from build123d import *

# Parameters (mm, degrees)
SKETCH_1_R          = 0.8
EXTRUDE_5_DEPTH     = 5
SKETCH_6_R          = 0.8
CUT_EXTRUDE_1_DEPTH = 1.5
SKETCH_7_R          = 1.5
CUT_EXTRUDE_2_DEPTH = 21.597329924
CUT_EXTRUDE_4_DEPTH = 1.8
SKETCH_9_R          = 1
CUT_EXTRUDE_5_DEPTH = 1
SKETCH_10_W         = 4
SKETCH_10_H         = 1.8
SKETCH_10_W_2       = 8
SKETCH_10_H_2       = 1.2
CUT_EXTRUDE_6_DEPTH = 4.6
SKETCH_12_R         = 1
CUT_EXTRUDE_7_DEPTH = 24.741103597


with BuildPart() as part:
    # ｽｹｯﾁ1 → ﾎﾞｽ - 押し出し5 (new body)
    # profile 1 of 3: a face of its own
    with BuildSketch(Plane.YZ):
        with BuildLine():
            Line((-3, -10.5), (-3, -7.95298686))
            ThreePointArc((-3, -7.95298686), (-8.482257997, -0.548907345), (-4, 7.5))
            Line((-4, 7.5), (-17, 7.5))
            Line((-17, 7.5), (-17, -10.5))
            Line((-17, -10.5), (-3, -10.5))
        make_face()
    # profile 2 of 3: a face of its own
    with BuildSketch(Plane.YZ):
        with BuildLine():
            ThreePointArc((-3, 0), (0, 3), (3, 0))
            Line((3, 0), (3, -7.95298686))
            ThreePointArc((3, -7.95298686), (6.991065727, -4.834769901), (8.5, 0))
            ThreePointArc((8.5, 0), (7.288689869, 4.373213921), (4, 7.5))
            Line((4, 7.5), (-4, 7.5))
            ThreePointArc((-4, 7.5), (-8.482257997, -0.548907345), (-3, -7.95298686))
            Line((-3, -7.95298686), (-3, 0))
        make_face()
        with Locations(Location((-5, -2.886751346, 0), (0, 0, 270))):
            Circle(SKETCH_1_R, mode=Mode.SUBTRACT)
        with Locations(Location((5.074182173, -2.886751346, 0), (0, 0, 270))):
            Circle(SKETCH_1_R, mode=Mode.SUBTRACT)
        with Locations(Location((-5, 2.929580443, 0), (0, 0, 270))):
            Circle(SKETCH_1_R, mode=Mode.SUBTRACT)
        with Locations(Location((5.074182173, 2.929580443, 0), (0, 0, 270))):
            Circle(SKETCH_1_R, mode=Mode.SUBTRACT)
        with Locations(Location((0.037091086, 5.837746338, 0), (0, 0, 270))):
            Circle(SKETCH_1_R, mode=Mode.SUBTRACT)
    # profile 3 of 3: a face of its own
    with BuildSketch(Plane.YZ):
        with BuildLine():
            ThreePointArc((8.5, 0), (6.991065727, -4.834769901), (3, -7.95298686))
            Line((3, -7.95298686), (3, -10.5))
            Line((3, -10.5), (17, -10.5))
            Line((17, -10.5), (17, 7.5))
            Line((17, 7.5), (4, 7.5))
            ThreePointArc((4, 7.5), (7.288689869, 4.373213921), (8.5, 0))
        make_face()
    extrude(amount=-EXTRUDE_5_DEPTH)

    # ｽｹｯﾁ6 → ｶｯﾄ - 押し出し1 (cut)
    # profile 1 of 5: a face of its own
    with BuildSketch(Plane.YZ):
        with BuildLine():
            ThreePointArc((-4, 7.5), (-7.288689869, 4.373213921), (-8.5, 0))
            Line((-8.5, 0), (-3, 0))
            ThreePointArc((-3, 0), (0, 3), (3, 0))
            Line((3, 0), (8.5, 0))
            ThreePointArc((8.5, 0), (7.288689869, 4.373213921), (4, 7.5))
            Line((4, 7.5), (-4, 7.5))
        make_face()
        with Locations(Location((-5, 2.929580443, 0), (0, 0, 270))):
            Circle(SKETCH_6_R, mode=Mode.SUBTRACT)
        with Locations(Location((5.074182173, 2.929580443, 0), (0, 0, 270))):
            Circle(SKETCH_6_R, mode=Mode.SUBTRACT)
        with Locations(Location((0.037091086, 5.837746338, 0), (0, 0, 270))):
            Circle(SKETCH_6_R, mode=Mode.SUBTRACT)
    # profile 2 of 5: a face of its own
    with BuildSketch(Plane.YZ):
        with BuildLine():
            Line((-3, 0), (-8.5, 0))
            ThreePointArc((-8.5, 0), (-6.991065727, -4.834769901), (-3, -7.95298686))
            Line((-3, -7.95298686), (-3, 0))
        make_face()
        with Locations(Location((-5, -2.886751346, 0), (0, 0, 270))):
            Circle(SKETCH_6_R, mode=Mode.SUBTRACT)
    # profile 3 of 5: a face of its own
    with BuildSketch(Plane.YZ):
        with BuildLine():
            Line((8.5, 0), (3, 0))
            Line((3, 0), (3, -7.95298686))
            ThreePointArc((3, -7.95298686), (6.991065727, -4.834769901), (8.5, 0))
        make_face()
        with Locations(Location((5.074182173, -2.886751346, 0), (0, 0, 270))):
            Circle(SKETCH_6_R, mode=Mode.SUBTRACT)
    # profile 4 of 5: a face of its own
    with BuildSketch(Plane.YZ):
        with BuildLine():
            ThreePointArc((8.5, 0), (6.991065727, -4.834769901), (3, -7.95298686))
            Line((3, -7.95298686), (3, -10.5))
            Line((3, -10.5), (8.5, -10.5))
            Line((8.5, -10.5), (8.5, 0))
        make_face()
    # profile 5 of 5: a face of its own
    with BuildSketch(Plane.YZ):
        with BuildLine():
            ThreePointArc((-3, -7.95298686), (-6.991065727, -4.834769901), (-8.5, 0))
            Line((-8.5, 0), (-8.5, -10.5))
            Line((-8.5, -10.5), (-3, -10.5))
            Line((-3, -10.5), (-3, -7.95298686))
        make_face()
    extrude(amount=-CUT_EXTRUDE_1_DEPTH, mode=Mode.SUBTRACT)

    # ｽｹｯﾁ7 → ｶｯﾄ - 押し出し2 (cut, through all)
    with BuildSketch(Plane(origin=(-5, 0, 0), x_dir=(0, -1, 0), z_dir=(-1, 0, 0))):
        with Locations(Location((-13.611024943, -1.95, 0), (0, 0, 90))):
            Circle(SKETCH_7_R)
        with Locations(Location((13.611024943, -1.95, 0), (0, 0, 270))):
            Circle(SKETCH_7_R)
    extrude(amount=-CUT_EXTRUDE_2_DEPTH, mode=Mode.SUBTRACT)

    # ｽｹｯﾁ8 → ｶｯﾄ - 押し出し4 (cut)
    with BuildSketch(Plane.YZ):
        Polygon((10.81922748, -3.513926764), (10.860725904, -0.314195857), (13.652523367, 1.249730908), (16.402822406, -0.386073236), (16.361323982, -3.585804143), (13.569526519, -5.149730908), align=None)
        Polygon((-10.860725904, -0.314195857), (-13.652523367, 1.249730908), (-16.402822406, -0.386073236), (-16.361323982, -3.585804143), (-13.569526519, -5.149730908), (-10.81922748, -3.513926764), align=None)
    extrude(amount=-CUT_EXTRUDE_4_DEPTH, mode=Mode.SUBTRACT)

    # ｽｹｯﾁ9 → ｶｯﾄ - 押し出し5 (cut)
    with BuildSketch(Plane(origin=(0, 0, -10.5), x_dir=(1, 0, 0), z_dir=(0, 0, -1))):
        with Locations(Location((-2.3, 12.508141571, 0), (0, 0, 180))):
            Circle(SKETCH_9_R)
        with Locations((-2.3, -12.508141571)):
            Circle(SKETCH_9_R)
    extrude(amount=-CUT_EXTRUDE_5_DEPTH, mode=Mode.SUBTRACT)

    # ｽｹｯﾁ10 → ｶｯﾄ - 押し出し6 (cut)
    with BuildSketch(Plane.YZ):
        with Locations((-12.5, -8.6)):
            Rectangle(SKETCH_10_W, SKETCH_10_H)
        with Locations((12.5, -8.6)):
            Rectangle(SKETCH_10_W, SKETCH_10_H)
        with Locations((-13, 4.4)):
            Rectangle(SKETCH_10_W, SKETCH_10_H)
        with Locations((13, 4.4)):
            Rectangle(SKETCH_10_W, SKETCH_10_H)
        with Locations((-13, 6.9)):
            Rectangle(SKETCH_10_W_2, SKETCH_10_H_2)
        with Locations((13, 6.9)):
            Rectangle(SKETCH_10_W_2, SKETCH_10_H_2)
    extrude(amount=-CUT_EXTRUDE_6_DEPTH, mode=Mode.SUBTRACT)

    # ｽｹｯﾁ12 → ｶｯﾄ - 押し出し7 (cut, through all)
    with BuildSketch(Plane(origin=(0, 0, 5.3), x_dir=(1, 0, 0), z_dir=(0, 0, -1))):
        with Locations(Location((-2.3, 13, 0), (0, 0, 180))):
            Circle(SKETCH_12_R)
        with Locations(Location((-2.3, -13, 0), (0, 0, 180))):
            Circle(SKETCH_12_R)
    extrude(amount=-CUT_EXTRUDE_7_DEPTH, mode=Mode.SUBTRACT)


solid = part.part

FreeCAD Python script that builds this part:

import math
import FreeCAD as App
import Part
import Sketcher
from FreeCAD import Vector

doc = App.newDocument("Part")
body = doc.addObject("PartDesign::Body", "Body")

# Sketch on YZ plane
sketch1 = doc.addObject("Sketcher::SketchObject", "Sketch")
body.addObject(sketch1)
sketch1.AttachmentSupport = (doc.YZ_Plane, [""])
sketch1.MapMode = "FlatFace"
sketch1.addGeometry([
    Part.LineSegment(Vector(-3, -10.5, 0), Vector(-3, 0, 0)),  # 0
    Part.ArcOfCircle(Part.Circle(Vector(0, 0, 0), Vector(0, 0, 1), 3), math.radians(0), math.radians(180)),  # 1
    Part.LineSegment(Vector(3, 0, 0), Vector(3, -10.5, 0)),  # 2
    Part.LineSegment(Vector(3, -10.5, 0), Vector(17, -10.5, 0)),  # 3
    Part.LineSegment(Vector(17, -10.5, 0), Vector(17, 7.5, 0)),  # 4
    Part.LineSegment(Vector(17, 7.5, 0), Vector(-17, 7.5, 0)),  # 5
    Part.LineSegment(Vector(-17, 7.5, 0), Vector(-17, -10.5, 0)),  # 6
    Part.LineSegment(Vector(-17, -10.5, 0), Vector(-3, -10.5, 0)),  # 7
    Part.Circle(Vector(5.1, 2.9, 0), Vector(0, 0, 1), 0.8),  # 8
    Part.Circle(Vector(-5, -2.9, 0), Vector(0, 0, 1), 0.8),  # 9
    Part.Circle(Vector(5.1, -2.9, 0), Vector(0, 0, 1), 0.8),  # 10
    Part.Circle(Vector(-5, 2.9, 0), Vector(0, 0, 1), 0.8),  # 11
    Part.Circle(Vector(0, 5.8, 0), Vector(0, 0, 1), 0.8),  # 12
], False)
sketch1.addConstraint([
    Sketcher.Constraint("Tangent", 0, 2, 1, 2),
    Sketcher.Constraint("Tangent", 1, 1, 2, 1),
    Sketcher.Constraint("Coincident", 2, 2, 3, 1),
    Sketcher.Constraint("Coincident", 3, 2, 4, 1),
    Sketcher.Constraint("Coincident", 4, 2, 5, 1),
    Sketcher.Constraint("Coincident", 5, 2, 6, 1),
    Sketcher.Constraint("Coincident", 6, 2, 7, 1),
    Sketcher.Constraint("Coincident", 7, 2, 0, 1),
    Sketcher.Constraint("Vertical", 0),
    Sketcher.Constraint("Vertical", 2),
    Sketcher.Constraint("Horizontal", 3),
    Sketcher.Constraint("Vertical", 4),
    Sketcher.Constraint("Horizontal", 5),
    Sketcher.Constraint("Vertical", 6),
    Sketcher.Constraint("Horizontal", 7),
    Sketcher.Constraint("Coincident", 1, 3, -1, 1),
    Sketcher.Constraint("Equal", 8, 9),
    Sketcher.Constraint("Equal", 9, 10),
    Sketcher.Constraint("Equal", 10, 11),
    Sketcher.Constraint("Equal", 11, 12),
    Sketcher.Constraint("Symmetric", 3, 2, 6, 2, -2),
    Sketcher.Constraint("Horizontal", 9, 3, 10, 3),
    Sketcher.Constraint("Horizontal", 8, 3, 11, 3),
    Sketcher.Constraint("Vertical", 8, 3, 10, 3),
    Sketcher.Constraint("Vertical", 9, 3, 11, 3),
    Sketcher.Constraint("Radius", 1, 3.0),
    Sketcher.Constraint("Diameter", 8, 1.6),
    Sketcher.Constraint("DistanceX", 3, 1, 3, 2, 14.0),
    Sketcher.Constraint("DistanceY", 4, 1, 4, 2, 18.0),
    Sketcher.Constraint("DistanceY", 0, 1, 0, 2, 10.5),
    Sketcher.Constraint("DistanceX", 9, 3, -1, 1, 5.0),
    Sketcher.Constraint("DistanceY", -1, 1, 8, 3, 2.92958),
    Sketcher.Constraint("DistanceY", 9, 3, -1, 1, 2.886751),
    Sketcher.Constraint("DistanceX", -1, 1, 12, 3, 0.037091),
    Sketcher.Constraint("DistanceX", 12, 3, 8, 3, 5.037091),
    Sketcher.Constraint("DistanceY", -1, 1, 12, 3, 5.837746),
])
pad1 = doc.addObject("PartDesign::Pad", "Pad")
body.addObject(pad1)
pad1.Profile = sketch1
pad1.Length = 5
pad1.Reversed = True

# Sketch on YZ plane
sketch2 = doc.addObject("Sketcher::SketchObject", "Sketch001")
body.addObject(sketch2)
sketch2.AttachmentSupport = (doc.YZ_Plane, [""])
sketch2.MapMode = "FlatFace"
sketch2.addGeometry([
    Part.ArcOfCircle(Part.Circle(Vector(0, 0, 0), Vector(0, 0, 1), 8.5), math.radians(118), math.radians(180)),  # 0
    Part.LineSegment(Vector(-8.5, 0, 0), Vector(-8.5, -10.5, 0)),  # 1
    Part.LineSegment(Vector(-8.5, -10.5, 0), Vector(-3, -10.5, 0)),  # 2
    Part.LineSegment(Vector(-3, -10.5, 0), Vector(-3, 0, 0)),  # 3
    Part.ArcOfCircle(Part.Circle(Vector(0, 0, 0), Vector(0, 0, 1), 3), math.radians(0), math.radians(180)),  # 4
    Part.LineSegment(Vector(3, 0, 0), Vector(3, -10.5, 0)),  # 5
    Part.LineSegment(Vector(3, -10.5, 0), Vector(8.5, -10.5, 0)),  # 6
    Part.LineSegment(Vector(8.5, -10.5, 0), Vector(8.5, 0, 0)),  # 7
    Part.ArcOfCircle(Part.Circle(Vector(0, 0, 0), Vector(0, 0, 1), 8.5), math.radians(0), math.radians(62)),  # 8
    Part.LineSegment(Vector(4, 7.5, 0), Vector(-4, 7.5, 0)),  # 9
    Part.Circle(Vector(-5, 2.9, 0), Vector(0, 0, 1), 0.8),  # 10
    Part.Circle(Vector(5.1, 2.9, 0), Vector(0, 0, 1), 0.8),  # 11
    Part.Circle(Vector(0, 5.8, 0), Vector(0, 0, 1), 0.8),  # 12
    Part.Circle(Vector(-5, -2.9, 0), Vector(0, 0, 1), 0.8),  # 13
    Part.Circle(Vector(5.1, -2.9, 0), Vector(0, 0, 1), 0.8),  # 14
], False)
sketch2.addConstraint([
    Sketcher.Constraint("Tangent", 0, 2, 1, 1),
    Sketcher.Constraint("Coincident", 1, 2, 2, 1),
    Sketcher.Constraint("Coincident", 2, 2, 3, 1),
    Sketcher.Constraint("Tangent", 3, 2, 4, 2),
    Sketcher.Constraint("Tangent", 4, 1, 5, 1),
    Sketcher.Constraint("Coincident", 5, 2, 6, 1),
    Sketcher.Constraint("Coincident", 6, 2, 7, 1),
    Sketcher.Constraint("Tangent", 7, 2, 8, 1),
    Sketcher.Constraint("Coincident", 8, 2, 9, 1),
    Sketcher.Constraint("Coincident", 9, 2, 0, 1),
    Sketcher.Constraint("Vertical", 1),
    Sketcher.Constraint("Horizontal", 2),
    Sketcher.Constraint("Vertical", 3),
    Sketcher.Constraint("Vertical", 5),
    Sketcher.Constraint("Horizontal", 6),
    Sketcher.Constraint("Vertical", 7),
    Sketcher.Constraint("Horizontal", 9),
    Sketcher.Constraint("Coincident", 0, 3, -1, 1),
    Sketcher.Constraint("Coincident", 4, 3, -1, 1),
    Sketcher.Constraint("Coincident", 8, 3, -1, 1),
    Sketcher.Constraint("Equal", 0, 8),
    Sketcher.Constraint("Equal", 10, 11),
    Sketcher.Constraint("Equal", 11, 12),
    Sketcher.Constraint("Equal", 12, 13),
    Sketcher.Constraint("Equal", 13, 14),
    Sketcher.Constraint("Horizontal", 10, 3, 11, 3),
    Sketcher.Constraint("Horizontal", 13, 3, 14, 3),
    Sketcher.Constraint("Horizontal", 2, 2, 5, 2),
    Sketcher.Constraint("Vertical", 10, 3, 13, 3),
    Sketcher.Constraint("Vertical", 11, 3, 14, 3),
    Sketcher.Constraint("Radius", 4, 3.0),
    Sketcher.Constraint("Diameter", 10, 1.6),
    Sketcher.Constraint("Radius", 0, 8.5),
    Sketcher.Constraint("DistanceX", 9, 2, 9, 1, 8.0),
    Sketcher.Constraint("DistanceY", 1, 2, 1, 1, 10.5),
    Sketcher.Constraint("DistanceX", 10, 3, -1, 1, 5.0),
    Sketcher.Constraint("DistanceY", -1, 1, 10, 3, 2.92958),
    Sketcher.Constraint("DistanceX", -1, 1, 12, 3, 0.037091),
    Sketcher.Constraint("DistanceY", 13, 3, -1, 1, 2.886751),
    Sketcher.Constraint("DistanceX", 12, 3, 11, 3, 5.037091),
    Sketcher.Constraint("DistanceY", -1, 1, 12, 3, 5.837746),
])
pocket1 = doc.addObject("PartDesign::Pocket", "Pocket")
body.addObject(pocket1)
pocket1.Profile = sketch2
pocket1.Length = 1.5

# Sketch on YZ plane
sketch3 = doc.addObject("Sketcher::SketchObject", "Sketch002")
body.addObject(sketch3)
sketch3.AttachmentSupport = (doc.YZ_Plane, [""])
sketch3.MapMode = "FlatFace"
sketch3.AttachmentOffset = App.Placement(Vector(0, 0, -5), App.Rotation())
sketch3.addGeometry([
    Part.Circle(Vector(13.6, -1.9, 0), Vector(0, 0, 1), 1.5),
    Part.Circle(Vector(-13.6, -1.9, 0), Vector(0, 0, 1), 1.5),
], False)
sketch3.addConstraint([
    Sketcher.Constraint("Equal", 0, 1),
    Sketcher.Constraint("Symmetric", 0, 3, 1, 3, -2),
    Sketcher.Constraint("Diameter", 0, 3.0),
    Sketcher.Constraint("DistanceY", 0, 3, -1, 1, 1.95),
    Sketcher.Constraint("DistanceX", 1, 3, 0, 3, 27.22205),
])
pocket2 = doc.addObject("PartDesign::Pocket", "Pocket001")
body.addObject(pocket2)
pocket2.Profile = sketch3
pocket2.Type = "ThroughAll"
pocket2.Reversed = True

# Sketch on YZ plane
sketch4 = doc.addObject("Sketcher::SketchObject", "Sketch003")
body.addObject(sketch4)
sketch4.AttachmentSupport = (doc.YZ_Plane, [""])
sketch4.MapMode = "FlatFace"
sketch4.addGeometry([
    Part.LineSegment(Vector(10.9, -0.3, 0), Vector(10.8, -3.5, 0)),  # 0
    Part.LineSegment(Vector(10.8, -3.5, 0), Vector(13.6, -5.1, 0)),  # 1
    Part.LineSegment(Vector(13.6, -5.1, 0), Vector(16.4, -3.6, 0)),  # 2
    Part.LineSegment(Vector(16.4, -3.6, 0), Vector(16.4, -0.4, 0)),  # 3
    Part.LineSegment(Vector(16.4, -0.4, 0), Vector(13.7, 1.2, 0)),  # 4
    Part.LineSegment(Vector(13.7, 1.2, 0), Vector(10.9, -0.3, 0)),  # 5
    Part.LineSegment(Vector(-10.9, -0.3, 0), Vector(-13.7, 1.2, 0)),  # 6
    Part.LineSegment(Vector(-13.7, 1.2, 0), Vector(-16.4, -0.4, 0)),  # 7
    Part.LineSegment(Vector(-16.4, -0.4, 0), Vector(-16.4, -3.6, 0)),  # 8
    Part.LineSegment(Vector(-16.4, -3.6, 0), Vector(-13.6, -5.1, 0)),  # 9
    Part.LineSegment(Vector(-13.6, -5.1, 0), Vector(-10.8, -3.5, 0)),  # 10
    Part.LineSegment(Vector(-10.8, -3.5, 0), Vector(-10.9, -0.3, 0)),  # 11
], False)
sketch4.addConstraint([
    Sketcher.Constraint("Coincident", 0, 2, 1, 1),
    Sketcher.Constraint("Coincident", 1, 2, 2, 1),
    Sketcher.Constraint("Coincident", 2, 2, 3, 1),
    Sketcher.Constraint("Coincident", 3, 2, 4, 1),
    Sketcher.Constraint("Coincident", 4, 2, 5, 1),
    Sketcher.Constraint("Coincident", 5, 2, 0, 1),
    Sketcher.Constraint("Coincident", 6, 2, 7, 1),
    Sketcher.Constraint("Coincident", 7, 2, 8, 1),
    Sketcher.Constraint("Coincident", 8, 2, 9, 1),
    Sketcher.Constraint("Coincident", 9, 2, 10, 1),
    Sketcher.Constraint("Coincident", 10, 2, 11, 1),
    Sketcher.Constraint("Coincident", 11, 2, 6, 1),
    Sketcher.Constraint("Symmetric", 4, 2, 6, 2, -2),
    Sketcher.Constraint("Symmetric", 3, 2, 7, 2, -2),
    Sketcher.Constraint("Symmetric", 2, 2, 8, 2, -2),
    Sketcher.Constraint("Symmetric", 1, 2, 9, 2, -2),
    Sketcher.Constraint("Symmetric", 0, 2, 10, 2, -2),
    Sketcher.Constraint("Symmetric", 5, 2, 11, 2, -2),
    Sketcher.Constraint("Parallel", 0, 3),
    Sketcher.Constraint("Parallel", 1, 4),
    Sketcher.Constraint("Parallel", 2, 5),
    Sketcher.Constraint("Equal", 0, 1),
    Sketcher.Constraint("Equal", 1, 2),
    Sketcher.Constraint("Equal", 2, 3),
    Sketcher.Constraint("Distance", 0, 3.2),
    Sketcher.Constraint("DistanceX", 0, 2, 1, 2, 2.750299),
    Sketcher.Constraint("DistanceX", 2, 2, 3, 2, 0.041498),
    Sketcher.Constraint("DistanceX", 5, 2, 2, 2, 5.500598),
    Sketcher.Constraint("DistanceY", 1, 2, -1, 1, 5.149731),
    Sketcher.Constraint("DistanceX", 6, 2, 5, 2, 24.513249),
])
pocket3 = doc.addObject("PartDesign::Pocket", "Pocket002")
body.addObject(pocket3)
pocket3.Profile = sketch4
pocket3.Length = 1.8

# Sketch on XY plane
sketch5 = doc.addObject("Sketcher::SketchObject", "Sketch004")
body.addObject(sketch5)
sketch5.AttachmentSupport = (doc.XY_Plane, [""])
sketch5.MapMode = "FlatFace"
sketch5.AttachmentOffset = App.Placement(Vector(0, 0, -10.5), App.Rotation())
sketch5.addGeometry([
    Part.Circle(Vector(-2.3, -12.5, 0), Vector(0, 0, 1), 1),
    Part.Circle(Vector(-2.3, 12.5, 0), Vector(0, 0, 1), 1),
], False)
sketch5.addConstraint([
    Sketcher.Constraint("Equal", 0, 1),
    Sketcher.Constraint("Symmetric", 0, 3, 1, 3, -1),
    Sketcher.Constraint("Diameter", 0, 2.0),
    Sketcher.Constraint("DistanceX", 0, 3, -1, 1, 2.3),
    Sketcher.Constraint("DistanceY", 0, 3, -1, 1, 12.508142),
])
pocket4 = doc.addObject("PartDesign::Pocket", "Pocket003")
body.addObject(pocket4)
pocket4.Profile = sketch5
pocket4.Length = 1
pocket4.Reversed = True

# Sketch on YZ plane
sketch6 = doc.addObject("Sketcher::SketchObject", "Sketch005")
body.addObject(sketch6)
sketch6.AttachmentSupport = (doc.YZ_Plane, [""])
sketch6.MapMode = "FlatFace"
sketch6.addGeometry([
    Part.LineSegment(Vector(-14.5, -7.7, 0), Vector(-14.5, -9.5, 0)),  # 0
    Part.LineSegment(Vector(-14.5, -9.5, 0), Vector(-10.5, -9.5, 0)),  # 1
    Part.LineSegment(Vector(-10.5, -9.5, 0), Vector(-10.5, -7.7, 0)),  # 2
    Part.LineSegment(Vector(-10.5, -7.7, 0), Vector(-14.5, -7.7, 0)),  # 3
    Part.LineSegment(Vector(10.5, -7.7, 0), Vector(10.5, -9.5, 0)),  # 4
    Part.LineSegment(Vector(10.5, -9.5, 0), Vector(14.5, -9.5, 0)),  # 5
    Part.LineSegment(Vector(14.5, -9.5, 0), Vector(14.5, -7.7, 0)),  # 6
    Part.LineSegment(Vector(14.5, -7.7, 0), Vector(10.5, -7.7, 0)),  # 7
    Part.LineSegment(Vector(-15, 5.3, 0), Vector(-15, 3.5, 0)),  # 8
    Part.LineSegment(Vector(-15, 3.5, 0), Vector(-11, 3.5, 0)),  # 9
    Part.LineSegment(Vector(-11, 3.5, 0), Vector(-11, 5.3, 0)),  # 10
    Part.LineSegment(Vector(-11, 5.3, 0), Vector(-15, 5.3, 0)),  # 11
    Part.LineSegment(Vector(11, 5.3, 0), Vector(11, 3.5, 0)),  # 12
    Part.LineSegment(Vector(11, 3.5, 0), Vector(15, 3.5, 0)),  # 13
    Part.LineSegment(Vector(15, 3.5, 0), Vector(15, 5.3, 0)),  # 14
    Part.LineSegment(Vector(15, 5.3, 0), Vector(11, 5.3, 0)),  # 15
    Part.LineSegment(Vector(-17, 7.5, 0), Vector(-17, 6.3, 0)),  # 16
    Part.LineSegment(Vector(-17, 6.3, 0), Vector(-9, 6.3, 0)),  # 17
    Part.LineSegment(Vector(-9, 6.3, 0), Vector(-9, 7.5, 0)),  # 18
    Part.LineSegment(Vector(-9, 7.5, 0), Vector(-17, 7.5, 0)),  # 19
    Part.LineSegment(Vector(9, 7.5, 0), Vector(9, 6.3, 0)),  # 20
    Part.LineSegment(Vector(9, 6.3, 0), Vector(17, 6.3, 0)),  # 21
    Part.LineSegment(Vector(17, 6.3, 0), Vector(17, 7.5, 0)),  # 22
    Part.LineSegment(Vector(17, 7.5, 0), Vector(9, 7.5, 0)),  # 23
], False)
sketch6.addConstraint([
    Sketcher.Constraint("Coincident", 0, 2, 1, 1),
    Sketcher.Constraint("Coincident", 1, 2, 2, 1),
    Sketcher.Constraint("Coincident", 2, 2, 3, 1),
    Sketcher.Constraint("Coincident", 3, 2, 0, 1),
    Sketcher.Constraint("Coincident", 4, 2, 5, 1),
    Sketcher.Constraint("Coincident", 5, 2, 6, 1),
    Sketcher.Constraint("Coincident", 6, 2, 7, 1),
    Sketcher.Constraint("Coincident", 7, 2, 4, 1),
    Sketcher.Constraint("Coincident", 8, 2, 9, 1),
    Sketcher.Constraint("Coincident", 9, 2, 10, 1),
    Sketcher.Constraint("Coincident", 10, 2, 11, 1),
    Sketcher.Constraint("Coincident", 11, 2, 8, 1),
    Sketcher.Constraint("Coincident", 12, 2, 13, 1),
    Sketcher.Constraint("Coincident", 13, 2, 14, 1),
    Sketcher.Constraint("Coincident", 14, 2, 15, 1),
    Sketcher.Constraint("Coincident", 15, 2, 12, 1),
    Sketcher.Constraint("Coincident", 16, 2, 17, 1),
    Sketcher.Constraint("Coincident", 17, 2, 18, 1),
    Sketcher.Constraint("Coincident", 18, 2, 19, 1),
    Sketcher.Constraint("Coincident", 19, 2, 16, 1),
    Sketcher.Constraint("Coincident", 20, 2, 21, 1),
    Sketcher.Constraint("Coincident", 21, 2, 22, 1),
    Sketcher.Constraint("Coincident", 22, 2, 23, 1),
    Sketcher.Constraint("Coincident", 23, 2, 20, 1),
    Sketcher.Constraint("Vertical", 0),
    Sketcher.Constraint("Horizontal", 1),
    Sketcher.Constraint("Vertical", 2),
    Sketcher.Constraint("Horizontal", 3),
    Sketcher.Constraint("Vertical", 4),
    Sketcher.Constraint("Horizontal", 5),
    Sketcher.Constraint("Vertical", 6),
    Sketcher.Constraint("Horizontal", 7),
    Sketcher.Constraint("Vertical", 8),
    Sketcher.Constraint("Horizontal", 9),
    Sketcher.Constraint("Vertical", 10),
    Sketcher.Constraint("Horizontal", 11),
    Sketcher.Constraint("Vertical", 12),
    Sketcher.Constraint("Horizontal", 13),
    Sketcher.Constraint("Vertical", 14),
    Sketcher.Constraint("Horizontal", 15),
    Sketcher.Constraint("Vertical", 16),
    Sketcher.Constraint("Horizontal", 17),
    Sketcher.Constraint("Vertical", 18),
    Sketcher.Constraint("Horizontal", 19),
    Sketcher.Constraint("Vertical", 20),
    Sketcher.Constraint("Horizontal", 21),
    Sketcher.Constraint("Vertical", 22),
    Sketcher.Constraint("Horizontal", 23),
    Sketcher.Constraint("Symmetric", 1, 2, 4, 2, -2),
    Sketcher.Constraint("Symmetric", 3, 2, 6, 2, -2),
    Sketcher.Constraint("Symmetric", 9, 2, 12, 2, -2),
    Sketcher.Constraint("Symmetric", 11, 2, 14, 2, -2),
    Sketcher.Constraint("Symmetric", 17, 2, 20, 2, -2),
    Sketcher.Constraint("Symmetric", 19, 2, 22, 2, -2),
    Sketcher.Constraint("Equal", 7, 9),
    Sketcher.Constraint("Equal", 6, 8),
    Sketcher.Constraint("DistanceX", 1, 1, 1, 2, 4.0),
    Sketcher.Constraint("DistanceX", 17, 1, 17, 2, 8.0),
    Sketcher.Constraint("DistanceY", 0, 2, 0, 1, 1.8),
    Sketcher.Constraint("DistanceY", 16, 2, 16, 1, 1.2),
    Sketcher.Constraint("DistanceX", 8, 2, -1, 1, 15.0),
    Sketcher.Constraint("DistanceX", 16, 2, -1, 1, 17.0),
    Sketcher.Constraint("DistanceX", 1, 2, 4, 2, 21.0),
    Sketcher.Constraint("DistanceY", 0, 2, 8, 2, 13.0),
    Sketcher.Constraint("DistanceY", 11, 2, 16, 2, 1.0),
    Sketcher.Constraint("DistanceY", 0, 2, -1, 1, 9.5),
])
pocket5 = doc.addObject("PartDesign::Pocket", "Pocket004")
body.addObject(pocket5)
pocket5.Profile = sketch6
pocket5.Length = 4.6

# Sketch on XY plane
sketch7 = doc.addObject("Sketcher::SketchObject", "Sketch006")
body.addObject(sketch7)
sketch7.AttachmentSupport = (doc.XY_Plane, [""])
sketch7.MapMode = "FlatFace"
sketch7.AttachmentOffset = App.Placement(Vector(0, 0, 5.3), App.Rotation())
sketch7.addGeometry([
    Part.Circle(Vector(-2.3, -13, 0), Vector(0, 0, 1), 1),
    Part.Circle(Vector(-2.3, 13, 0), Vector(0, 0, 1), 1),
], False)
sketch7.addConstraint([
    Sketcher.Constraint("Equal", 0, 1),
    Sketcher.Constraint("Symmetric", 0, 3, 1, 3, -1),
    Sketcher.Constraint("Diameter", 0, 2.0),
    Sketcher.Constraint("DistanceY", 0, 3, -1, 1, 13.0),
    Sketcher.Constraint("DistanceX", 0, 3, -1, 1, 2.3),
])
pocket6 = doc.addObject("PartDesign::Pocket", "Pocket005")
body.addObject(pocket6)
pocket6.Profile = sketch7
pocket6.Type = "ThroughAll"
pocket6.Reversed = True

doc.recompute()
